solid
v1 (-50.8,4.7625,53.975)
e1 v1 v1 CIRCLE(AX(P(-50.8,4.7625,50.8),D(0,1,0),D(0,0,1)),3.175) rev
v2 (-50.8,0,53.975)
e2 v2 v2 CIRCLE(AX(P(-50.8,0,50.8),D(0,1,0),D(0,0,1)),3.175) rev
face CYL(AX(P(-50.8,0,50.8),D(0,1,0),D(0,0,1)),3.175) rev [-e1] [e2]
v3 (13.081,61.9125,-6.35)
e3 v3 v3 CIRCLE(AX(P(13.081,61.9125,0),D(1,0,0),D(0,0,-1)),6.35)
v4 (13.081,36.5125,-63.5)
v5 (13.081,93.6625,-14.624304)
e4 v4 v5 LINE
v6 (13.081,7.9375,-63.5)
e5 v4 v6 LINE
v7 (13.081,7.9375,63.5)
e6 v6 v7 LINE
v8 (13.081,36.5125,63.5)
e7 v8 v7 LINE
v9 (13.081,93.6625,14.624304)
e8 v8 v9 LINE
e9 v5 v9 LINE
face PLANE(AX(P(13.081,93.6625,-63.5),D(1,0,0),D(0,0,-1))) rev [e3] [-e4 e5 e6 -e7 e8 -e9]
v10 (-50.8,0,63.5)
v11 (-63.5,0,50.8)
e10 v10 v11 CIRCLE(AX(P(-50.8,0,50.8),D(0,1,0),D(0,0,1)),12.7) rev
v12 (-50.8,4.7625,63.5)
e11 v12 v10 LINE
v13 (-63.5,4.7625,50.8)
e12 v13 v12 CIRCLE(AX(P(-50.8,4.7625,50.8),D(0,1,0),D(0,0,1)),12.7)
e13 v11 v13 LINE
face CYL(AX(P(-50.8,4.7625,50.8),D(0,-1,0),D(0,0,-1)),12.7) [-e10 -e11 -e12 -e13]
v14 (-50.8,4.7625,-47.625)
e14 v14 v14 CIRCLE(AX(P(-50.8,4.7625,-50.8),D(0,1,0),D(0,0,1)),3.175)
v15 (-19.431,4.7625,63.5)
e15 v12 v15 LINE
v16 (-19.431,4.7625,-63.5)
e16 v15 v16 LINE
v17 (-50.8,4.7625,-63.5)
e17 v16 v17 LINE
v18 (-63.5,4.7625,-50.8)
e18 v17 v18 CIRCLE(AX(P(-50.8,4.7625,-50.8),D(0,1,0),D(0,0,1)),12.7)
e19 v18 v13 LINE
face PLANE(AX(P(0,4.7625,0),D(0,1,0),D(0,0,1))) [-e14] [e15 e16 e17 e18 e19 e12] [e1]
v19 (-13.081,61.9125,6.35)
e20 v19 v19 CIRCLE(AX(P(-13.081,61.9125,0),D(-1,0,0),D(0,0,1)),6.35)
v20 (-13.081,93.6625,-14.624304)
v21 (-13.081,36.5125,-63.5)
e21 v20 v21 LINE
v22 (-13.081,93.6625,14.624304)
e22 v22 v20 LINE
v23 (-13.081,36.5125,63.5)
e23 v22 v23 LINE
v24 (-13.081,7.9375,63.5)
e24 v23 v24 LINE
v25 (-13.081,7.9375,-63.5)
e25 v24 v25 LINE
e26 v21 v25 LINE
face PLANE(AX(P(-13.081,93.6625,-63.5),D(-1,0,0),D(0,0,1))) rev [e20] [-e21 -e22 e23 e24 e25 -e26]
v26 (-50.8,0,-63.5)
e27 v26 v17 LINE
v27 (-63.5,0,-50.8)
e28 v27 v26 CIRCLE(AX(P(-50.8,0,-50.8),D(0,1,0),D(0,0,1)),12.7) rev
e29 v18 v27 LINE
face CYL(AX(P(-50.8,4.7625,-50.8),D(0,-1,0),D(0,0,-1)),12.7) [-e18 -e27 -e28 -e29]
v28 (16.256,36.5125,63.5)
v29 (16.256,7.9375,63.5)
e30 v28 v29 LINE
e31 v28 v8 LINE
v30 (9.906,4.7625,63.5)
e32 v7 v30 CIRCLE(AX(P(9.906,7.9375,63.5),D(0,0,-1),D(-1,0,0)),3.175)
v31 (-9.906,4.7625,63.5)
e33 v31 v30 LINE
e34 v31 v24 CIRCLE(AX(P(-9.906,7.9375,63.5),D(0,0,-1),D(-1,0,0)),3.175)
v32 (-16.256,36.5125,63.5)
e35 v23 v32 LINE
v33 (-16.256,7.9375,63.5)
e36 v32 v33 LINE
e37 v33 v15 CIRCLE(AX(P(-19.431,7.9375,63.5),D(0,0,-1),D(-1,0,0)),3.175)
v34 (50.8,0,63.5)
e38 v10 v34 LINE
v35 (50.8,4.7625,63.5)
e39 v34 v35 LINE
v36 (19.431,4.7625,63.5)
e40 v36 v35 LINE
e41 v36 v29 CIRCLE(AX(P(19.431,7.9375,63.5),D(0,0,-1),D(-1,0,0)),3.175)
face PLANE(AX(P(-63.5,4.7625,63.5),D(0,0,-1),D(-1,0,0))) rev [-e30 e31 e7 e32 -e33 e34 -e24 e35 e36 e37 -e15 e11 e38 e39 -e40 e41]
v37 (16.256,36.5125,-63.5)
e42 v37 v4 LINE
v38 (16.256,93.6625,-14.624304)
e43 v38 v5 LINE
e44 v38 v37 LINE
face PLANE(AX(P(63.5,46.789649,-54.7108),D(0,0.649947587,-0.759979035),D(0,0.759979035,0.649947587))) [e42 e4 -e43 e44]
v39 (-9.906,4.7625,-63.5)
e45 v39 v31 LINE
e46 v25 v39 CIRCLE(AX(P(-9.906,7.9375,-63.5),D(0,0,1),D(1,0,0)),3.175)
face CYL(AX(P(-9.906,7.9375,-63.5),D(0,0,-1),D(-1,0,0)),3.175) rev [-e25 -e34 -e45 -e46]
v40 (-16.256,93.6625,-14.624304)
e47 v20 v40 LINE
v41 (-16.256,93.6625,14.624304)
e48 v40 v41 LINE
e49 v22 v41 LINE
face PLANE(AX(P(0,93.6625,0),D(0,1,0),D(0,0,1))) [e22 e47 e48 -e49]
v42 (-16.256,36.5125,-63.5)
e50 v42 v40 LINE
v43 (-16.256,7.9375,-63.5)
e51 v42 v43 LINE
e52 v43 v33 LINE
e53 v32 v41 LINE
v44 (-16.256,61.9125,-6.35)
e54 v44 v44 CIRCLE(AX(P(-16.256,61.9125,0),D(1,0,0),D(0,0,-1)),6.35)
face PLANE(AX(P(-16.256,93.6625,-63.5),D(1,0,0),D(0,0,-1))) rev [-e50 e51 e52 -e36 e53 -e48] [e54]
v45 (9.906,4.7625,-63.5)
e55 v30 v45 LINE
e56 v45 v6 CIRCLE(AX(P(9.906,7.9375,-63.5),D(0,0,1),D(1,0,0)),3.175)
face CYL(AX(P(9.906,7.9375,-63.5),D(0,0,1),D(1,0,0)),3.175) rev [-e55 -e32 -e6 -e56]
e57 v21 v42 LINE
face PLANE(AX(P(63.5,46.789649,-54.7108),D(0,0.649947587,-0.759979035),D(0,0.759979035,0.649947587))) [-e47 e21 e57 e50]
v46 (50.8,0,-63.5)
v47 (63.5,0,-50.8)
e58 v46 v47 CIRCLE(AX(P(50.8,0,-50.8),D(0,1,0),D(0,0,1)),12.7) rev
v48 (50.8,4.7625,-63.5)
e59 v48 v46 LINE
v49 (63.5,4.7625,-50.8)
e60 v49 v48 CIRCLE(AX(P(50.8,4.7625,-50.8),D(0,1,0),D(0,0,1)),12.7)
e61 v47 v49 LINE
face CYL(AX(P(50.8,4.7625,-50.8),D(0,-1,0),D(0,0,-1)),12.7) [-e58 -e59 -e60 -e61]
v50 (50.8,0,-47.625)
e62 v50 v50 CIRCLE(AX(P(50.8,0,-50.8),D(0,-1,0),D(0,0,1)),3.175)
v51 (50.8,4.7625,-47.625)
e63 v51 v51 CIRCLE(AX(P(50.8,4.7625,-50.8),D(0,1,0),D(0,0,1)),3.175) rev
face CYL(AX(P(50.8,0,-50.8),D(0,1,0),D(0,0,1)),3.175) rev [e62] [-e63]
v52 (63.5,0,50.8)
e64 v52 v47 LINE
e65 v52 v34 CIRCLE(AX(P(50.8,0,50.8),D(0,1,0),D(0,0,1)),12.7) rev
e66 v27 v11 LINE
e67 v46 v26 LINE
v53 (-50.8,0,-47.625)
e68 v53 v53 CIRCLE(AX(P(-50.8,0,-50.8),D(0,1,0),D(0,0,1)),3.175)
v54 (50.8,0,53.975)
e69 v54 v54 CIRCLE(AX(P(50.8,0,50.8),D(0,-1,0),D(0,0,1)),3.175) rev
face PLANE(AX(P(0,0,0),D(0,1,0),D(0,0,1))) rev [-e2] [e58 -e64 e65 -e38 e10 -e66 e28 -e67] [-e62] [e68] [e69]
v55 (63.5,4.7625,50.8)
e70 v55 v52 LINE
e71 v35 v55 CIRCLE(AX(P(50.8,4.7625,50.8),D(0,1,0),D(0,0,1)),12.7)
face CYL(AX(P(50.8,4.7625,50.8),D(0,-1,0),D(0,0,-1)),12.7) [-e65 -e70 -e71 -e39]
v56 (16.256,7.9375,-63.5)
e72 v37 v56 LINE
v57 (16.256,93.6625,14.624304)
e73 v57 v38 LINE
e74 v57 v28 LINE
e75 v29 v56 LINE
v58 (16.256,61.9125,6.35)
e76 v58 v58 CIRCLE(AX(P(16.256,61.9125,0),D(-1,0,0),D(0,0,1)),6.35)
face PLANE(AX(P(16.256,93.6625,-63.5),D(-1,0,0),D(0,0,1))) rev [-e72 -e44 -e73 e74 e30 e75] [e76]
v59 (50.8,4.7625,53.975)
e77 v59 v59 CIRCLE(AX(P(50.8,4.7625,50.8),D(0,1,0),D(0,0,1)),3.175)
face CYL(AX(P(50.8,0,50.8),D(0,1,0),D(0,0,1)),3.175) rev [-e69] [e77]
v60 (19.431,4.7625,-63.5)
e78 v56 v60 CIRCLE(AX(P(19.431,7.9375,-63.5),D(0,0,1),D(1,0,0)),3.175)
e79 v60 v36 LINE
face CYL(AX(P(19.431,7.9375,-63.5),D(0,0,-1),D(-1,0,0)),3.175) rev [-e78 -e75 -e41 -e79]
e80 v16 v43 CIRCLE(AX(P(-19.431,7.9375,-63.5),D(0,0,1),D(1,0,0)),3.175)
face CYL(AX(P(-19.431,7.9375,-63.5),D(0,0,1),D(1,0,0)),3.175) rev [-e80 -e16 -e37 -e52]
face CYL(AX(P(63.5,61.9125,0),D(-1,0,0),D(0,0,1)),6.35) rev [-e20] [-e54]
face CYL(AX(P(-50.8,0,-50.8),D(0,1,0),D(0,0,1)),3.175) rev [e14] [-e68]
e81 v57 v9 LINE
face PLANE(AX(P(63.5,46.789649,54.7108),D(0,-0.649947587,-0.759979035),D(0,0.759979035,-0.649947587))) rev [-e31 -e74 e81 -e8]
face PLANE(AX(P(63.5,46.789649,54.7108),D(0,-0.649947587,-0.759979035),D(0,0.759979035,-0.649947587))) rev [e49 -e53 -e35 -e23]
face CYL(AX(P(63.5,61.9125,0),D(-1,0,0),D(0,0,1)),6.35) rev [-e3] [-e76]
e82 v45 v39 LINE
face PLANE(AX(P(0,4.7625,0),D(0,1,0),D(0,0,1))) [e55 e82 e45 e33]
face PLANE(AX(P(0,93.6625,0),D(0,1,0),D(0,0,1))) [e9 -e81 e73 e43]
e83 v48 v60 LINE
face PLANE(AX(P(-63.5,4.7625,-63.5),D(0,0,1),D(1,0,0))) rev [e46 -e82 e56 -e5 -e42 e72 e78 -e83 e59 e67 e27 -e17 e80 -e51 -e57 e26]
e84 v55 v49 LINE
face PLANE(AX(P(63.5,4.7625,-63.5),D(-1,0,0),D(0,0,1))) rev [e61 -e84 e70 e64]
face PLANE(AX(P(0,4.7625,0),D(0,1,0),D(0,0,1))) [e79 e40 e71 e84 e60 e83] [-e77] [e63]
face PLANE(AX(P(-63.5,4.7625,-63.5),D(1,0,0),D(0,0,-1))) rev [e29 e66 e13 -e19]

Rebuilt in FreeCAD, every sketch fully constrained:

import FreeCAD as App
import Part
import Sketcher
from FreeCAD import Vector
Q = App.Units.Quantity


def edges_at(feature, points):
    """Names of the edges that pass closest to the given points."""
    edges = feature.Shape.Edges
    near = lambda p: min(range(len(edges)), key=lambda i: edges[i].distToShape(Part.Vertex(*p))[0])
    return sorted({f"Edge{near(p) + 1}" for p in points})

doc = App.newDocument("Part")
body = doc.addObject("PartDesign::Body", "Body")

sketch1 = doc.addObject("Sketcher::SketchObject", "Sketch")
body.addObject(sketch1)
sketch1.AttachmentSupport = (doc.XZ_Plane, [""])
sketch1.MapMode = "FlatFace"
sketch1.addGeometry([
    Part.LineSegment(Vector(-64, -64, 0), Vector(-64, 64, 0)),
    Part.LineSegment(Vector(-64, 64, 0), Vector(64, 64, 0)),
    Part.LineSegment(Vector(64, 64, 0), Vector(64, -64, 0)),
    Part.LineSegment(Vector(64, -64, 0), Vector(-64, -64, 0)),
], False)
sketch1.addConstraint([
    Sketcher.Constraint("Coincident", 0, 2, 1, 1),
    Sketcher.Constraint("Coincident", 1, 2, 2, 1),
    Sketcher.Constraint("Coincident", 2, 2, 3, 1),
    Sketcher.Constraint("Coincident", 3, 2, 0, 1),
    Sketcher.Constraint("Vertical", 0),
    Sketcher.Constraint("Horizontal", 1),
    Sketcher.Constraint("Vertical", 2),
    Sketcher.Constraint("Horizontal", 3),
    Sketcher.Constraint("Symmetric", 0, 2, 2, 2, -1, 1),
    Sketcher.Constraint("Equal", 3, 0),
    Sketcher.Constraint("DistanceX", 1, 1, 1, 2, Q("5 in")),
])
pad1 = doc.addObject("PartDesign::Pad", "Pad")
body.addObject(pad1)
pad1.Profile = sketch1
pad1.Length = Q("0.1875 in")
pad1.Reversed = True

sketch2 = doc.addObject("Sketcher::SketchObject", "Sketch001")
body.addObject(sketch2)
sketch2.AttachmentSupport = (doc.XZ_Plane, [""])
sketch2.MapMode = "FlatFace"
sketch2.AttachmentOffset = App.Placement(Vector(0, 0, -0.1875 * 25.4), App.Rotation())
sketch2.addGeometry([
    Part.LineSegment(Vector(-16.3, -63.5, 0), Vector(-16.3, 63.5, 0)),
    Part.LineSegment(Vector(-16.3, 63.5, 0), Vector(-13.1, 63.5, 0)),
    Part.LineSegment(Vector(-13.1, 63.5, 0), Vector(-13.1, -63.5, 0)),
    Part.LineSegment(Vector(-13.1, -63.5, 0), Vector(-16.3, -63.5, 0)),
    Part.LineSegment(Vector(13.1, -63.5, 0), Vector(13.1, 63.5, 0)),
    Part.LineSegment(Vector(13.1, 63.5, 0), Vector(16.3, 63.5, 0)),
    Part.LineSegment(Vector(16.3, 63.5, 0), Vector(16.3, -63.5, 0)),
    Part.LineSegment(Vector(16.3, -63.5, 0), Vector(13.1, -63.5, 0)),
], False)
sketch2.addConstraint([
    Sketcher.Constraint("Coincident", 0, 2, 1, 1),
    Sketcher.Constraint("Coincident", 1, 2, 2, 1),
    Sketcher.Constraint("Coincident", 2, 2, 3, 1),
    Sketcher.Constraint("Coincident", 3, 2, 0, 1),
    Sketcher.Constraint("Coincident", 4, 2, 5, 1),
    Sketcher.Constraint("Coincident", 5, 2, 6, 1),
    Sketcher.Constraint("Coincident", 6, 2, 7, 1),
    Sketcher.Constraint("Coincident", 7, 2, 4, 1),
    Sketcher.Constraint("Vertical", 0),
    Sketcher.Constraint("Horizontal", 1),
    Sketcher.Constraint("Vertical", 2),
    Sketcher.Constraint("Horizontal", 3),
    Sketcher.Constraint("Vertical", 4),
    Sketcher.Constraint("Horizontal", 5),
    Sketcher.Constraint("Vertical", 6),
    Sketcher.Constraint("Horizontal", 7),
    Sketcher.Constraint("Symmetric", 2, 2, 4, 2, -1, 1),
    Sketcher.Constraint("Symmetric", 0, 2, 6, 2, -1, 1),
    Sketcher.Constraint("Horizontal", 1, 2, 4, 2),
    Sketcher.Constraint("DistanceY", 0, 1, 0, 2, Q("5 in")),
    Sketcher.Constraint("DistanceX", 1, 1, 1, 2, Q("0.125 in")),
    Sketcher.Constraint("DistanceX", 0, 2, -1, 1, Q("0.64 in")),
])
pad2 = doc.addObject("PartDesign::Pad", "Pad001")
body.addObject(pad2)
pad2.Profile = sketch2
pad2.Length = Q("3.5 in")
pad2.Reversed = True

sketch3 = doc.addObject("Sketcher::SketchObject", "Sketch002")
body.addObject(sketch3)
sketch3.AttachmentSupport = (doc.YZ_Plane, [""])
sketch3.MapMode = "FlatFace"
sketch3.AttachmentOffset = App.Placement(Vector(0, 0, -0.64 * 25.4), App.Rotation())
sketch3.addGeometry(Part.Circle(Vector(62, 0, 0), Vector(0, 0, 1), 6), False)
sketch3.addConstraint([
    Sketcher.Constraint("PointOnObject", 0, 3, -1),
    Sketcher.Constraint("Diameter", 0, Q("0.5 in")),
    Sketcher.Constraint("DistanceX", -1, 1, 0, 3, Q("2.4375 in")),
])
pocket1 = doc.addObject("PartDesign::Pocket", "Pocket")
body.addObject(pocket1)
pocket1.Profile = sketch3
pocket1.Type = "ThroughAll"
pocket1.Midplane = True
doc.recompute()

fillet = doc.addObject("PartDesign::Fillet", "Fillet")
body.addObject(fillet)
fillet.Base = (pocket1, edges_at(pocket1, [
    (-16.256, 4.763, 0),
    (-13.081, 4.763, 0),
    (13.081, 4.763, 0),
    (16.256, 4.763, 0),
]))
fillet.Radius = Q("0.125 in")
doc.recompute()

chamfer = doc.addObject("PartDesign::Chamfer", "Chamfer")
body.addObject(chamfer)
chamfer.Base = (fillet, edges_at(fillet, [
    (-14.668, 93.662, 63.5),
    (-14.668, 93.662, -63.5),
    (14.668, 93.662, 63.5),
    (14.668, 93.662, -63.5),
]))
chamfer.Size = Q("1 in")

sketch4 = doc.addObject("Sketcher::SketchObject", "Sketch003")
body.addObject(sketch4)
sketch4.AttachmentSupport = (doc.XZ_Plane, [""])
sketch4.MapMode = "FlatFace"
sketch4.AttachmentOffset = App.Placement(Vector(0, 0, 1), App.Rotation())
sketch4.addGeometry([
    Part.Circle(Vector(-50.8, 50.8, 0), Vector(0, 0, 1), 3.2),
    Part.Circle(Vector(-50.8, -50.8, 0), Vector(0, 0, 1), 3.2),
], False)
sketch4.addConstraint([
    Sketcher.Constraint("Equal", 0, 1),
    Sketcher.Constraint("Symmetric", 0, 3, 1, 3, -1),
    Sketcher.Constraint("Diameter", 0, Q("0.25 in")),
    Sketcher.Constraint("DistanceX", 0, 3, -1, 1, Q("2 in")),
    Sketcher.Constraint("DistanceY", -1, 1, 0, 3, Q("2 in")),
])
pocket2 = doc.addObject("PartDesign::Pocket", "Pocket001")
body.addObject(pocket2)
pocket2.Profile = sketch4
pocket2.Length = 95.6625
doc.recompute()

mirrored = doc.addObject("PartDesign::Mirrored", "Mirrored")
body.addObject(mirrored)
mirrored.Originals = [pocket2]
mirrored.MirrorPlane = (doc.YZ_Plane, [""])
body.Tip = mirrored
doc.recompute()

fillet2 = doc.addObject("PartDesign::Fillet", "Fillet001")
body.addObject(fillet2)
fillet2.Base = (mirrored, edges_at(mirrored, [
    (-63.5, 2.381, -63.5),
    (63.5, 2.381, -63.5),
    (63.5, 2.381, 63.5),
    (-63.5, 2.381, 63.5),
]))
fillet2.Radius = Q("0.5 in")

sketch5 = doc.addObject("Sketcher::SketchObject", "Sketch004")
body.addObject(sketch5)
sketch5.AttachmentSupport = (doc.YZ_Plane, [""])
sketch5.MapMode = "FlatFace"
sketch5.AttachmentOffset = App.Placement(Vector(0, 0, -0.64 * 25.4), App.Rotation())
sketch5.addGeometry([
    Part.LineSegment(Vector(37, -64, 0), Vector(94, -15, 0)),
    Part.LineSegment(Vector(94, -15, 0), Vector(94, -38, 0)),
    Part.LineSegment(Vector(94, -38, 0), Vector(68, -64, 0)),
    Part.LineSegment(Vector(68, -64, 0), Vector(37, -64, 0)),
    Part.LineSegment(Vector(94, 38, 0), Vector(94, 15, 0)),
    Part.LineSegment(Vector(94, 15, 0), Vector(37, 64, 0)),
    Part.LineSegment(Vector(37, 64, 0), Vector(68, 64, 0)),
    Part.LineSegment(Vector(68, 64, 0), Vector(94, 38, 0)),
], False)
sketch5.addConstraint([
    Sketcher.Constraint("Coincident", 0, 2, 1, 1),
    Sketcher.Constraint("Coincident", 1, 2, 2, 1),
    Sketcher.Constraint("Coincident", 2, 2, 3, 1),
    Sketcher.Constraint("Coincident", 3, 2, 0, 1),
    Sketcher.Constraint("Coincident", 4, 2, 5, 1),
    Sketcher.Constraint("Coincident", 5, 2, 6, 1),
    Sketcher.Constraint("Coincident", 6, 2, 7, 1),
    Sketcher.Constraint("Coincident", 7, 2, 4, 1),
    Sketcher.Constraint("Vertical", 1),
    Sketcher.Constraint("Horizontal", 3),
    Sketcher.Constraint("Vertical", 4),
    Sketcher.Constraint("Horizontal", 6),
    Sketcher.Constraint("Symmetric", 0, 2, 4, 2, -1),
    Sketcher.Constraint("Symmetric", 3, 2, 5, 2, -1),
    Sketcher.Constraint("Perpendicular", 2, 7),
    Sketcher.Constraint("Vertical", 2, 2, 6, 2),
    Sketcher.Constraint("Equal", 1, 4),
    Sketcher.Constraint("DistanceX", 2, 2, 1, 2, Q("1 in")),
    Sketcher.Constraint("DistanceY", 1, 2, 5, 2, Q("4 in")),
    Sketcher.Constraint("DistanceX", 3, 2, 3, 1, Q("1.25 in")),
    Sketcher.Constraint("DistanceX", -1, 1, 0, 2, Q("3.6875 in")),
    Sketcher.Constraint("DistanceY", 1, 2, 1, 1, Q("23.475696 mm")),
])
pocket3 = doc.addObject("PartDesign::Pocket", "Pocket002")
body.addObject(pocket3)
pocket3.Profile = sketch5
pocket3.Type = "ThroughAll"
pocket3.Midplane = True

doc.recompute()
